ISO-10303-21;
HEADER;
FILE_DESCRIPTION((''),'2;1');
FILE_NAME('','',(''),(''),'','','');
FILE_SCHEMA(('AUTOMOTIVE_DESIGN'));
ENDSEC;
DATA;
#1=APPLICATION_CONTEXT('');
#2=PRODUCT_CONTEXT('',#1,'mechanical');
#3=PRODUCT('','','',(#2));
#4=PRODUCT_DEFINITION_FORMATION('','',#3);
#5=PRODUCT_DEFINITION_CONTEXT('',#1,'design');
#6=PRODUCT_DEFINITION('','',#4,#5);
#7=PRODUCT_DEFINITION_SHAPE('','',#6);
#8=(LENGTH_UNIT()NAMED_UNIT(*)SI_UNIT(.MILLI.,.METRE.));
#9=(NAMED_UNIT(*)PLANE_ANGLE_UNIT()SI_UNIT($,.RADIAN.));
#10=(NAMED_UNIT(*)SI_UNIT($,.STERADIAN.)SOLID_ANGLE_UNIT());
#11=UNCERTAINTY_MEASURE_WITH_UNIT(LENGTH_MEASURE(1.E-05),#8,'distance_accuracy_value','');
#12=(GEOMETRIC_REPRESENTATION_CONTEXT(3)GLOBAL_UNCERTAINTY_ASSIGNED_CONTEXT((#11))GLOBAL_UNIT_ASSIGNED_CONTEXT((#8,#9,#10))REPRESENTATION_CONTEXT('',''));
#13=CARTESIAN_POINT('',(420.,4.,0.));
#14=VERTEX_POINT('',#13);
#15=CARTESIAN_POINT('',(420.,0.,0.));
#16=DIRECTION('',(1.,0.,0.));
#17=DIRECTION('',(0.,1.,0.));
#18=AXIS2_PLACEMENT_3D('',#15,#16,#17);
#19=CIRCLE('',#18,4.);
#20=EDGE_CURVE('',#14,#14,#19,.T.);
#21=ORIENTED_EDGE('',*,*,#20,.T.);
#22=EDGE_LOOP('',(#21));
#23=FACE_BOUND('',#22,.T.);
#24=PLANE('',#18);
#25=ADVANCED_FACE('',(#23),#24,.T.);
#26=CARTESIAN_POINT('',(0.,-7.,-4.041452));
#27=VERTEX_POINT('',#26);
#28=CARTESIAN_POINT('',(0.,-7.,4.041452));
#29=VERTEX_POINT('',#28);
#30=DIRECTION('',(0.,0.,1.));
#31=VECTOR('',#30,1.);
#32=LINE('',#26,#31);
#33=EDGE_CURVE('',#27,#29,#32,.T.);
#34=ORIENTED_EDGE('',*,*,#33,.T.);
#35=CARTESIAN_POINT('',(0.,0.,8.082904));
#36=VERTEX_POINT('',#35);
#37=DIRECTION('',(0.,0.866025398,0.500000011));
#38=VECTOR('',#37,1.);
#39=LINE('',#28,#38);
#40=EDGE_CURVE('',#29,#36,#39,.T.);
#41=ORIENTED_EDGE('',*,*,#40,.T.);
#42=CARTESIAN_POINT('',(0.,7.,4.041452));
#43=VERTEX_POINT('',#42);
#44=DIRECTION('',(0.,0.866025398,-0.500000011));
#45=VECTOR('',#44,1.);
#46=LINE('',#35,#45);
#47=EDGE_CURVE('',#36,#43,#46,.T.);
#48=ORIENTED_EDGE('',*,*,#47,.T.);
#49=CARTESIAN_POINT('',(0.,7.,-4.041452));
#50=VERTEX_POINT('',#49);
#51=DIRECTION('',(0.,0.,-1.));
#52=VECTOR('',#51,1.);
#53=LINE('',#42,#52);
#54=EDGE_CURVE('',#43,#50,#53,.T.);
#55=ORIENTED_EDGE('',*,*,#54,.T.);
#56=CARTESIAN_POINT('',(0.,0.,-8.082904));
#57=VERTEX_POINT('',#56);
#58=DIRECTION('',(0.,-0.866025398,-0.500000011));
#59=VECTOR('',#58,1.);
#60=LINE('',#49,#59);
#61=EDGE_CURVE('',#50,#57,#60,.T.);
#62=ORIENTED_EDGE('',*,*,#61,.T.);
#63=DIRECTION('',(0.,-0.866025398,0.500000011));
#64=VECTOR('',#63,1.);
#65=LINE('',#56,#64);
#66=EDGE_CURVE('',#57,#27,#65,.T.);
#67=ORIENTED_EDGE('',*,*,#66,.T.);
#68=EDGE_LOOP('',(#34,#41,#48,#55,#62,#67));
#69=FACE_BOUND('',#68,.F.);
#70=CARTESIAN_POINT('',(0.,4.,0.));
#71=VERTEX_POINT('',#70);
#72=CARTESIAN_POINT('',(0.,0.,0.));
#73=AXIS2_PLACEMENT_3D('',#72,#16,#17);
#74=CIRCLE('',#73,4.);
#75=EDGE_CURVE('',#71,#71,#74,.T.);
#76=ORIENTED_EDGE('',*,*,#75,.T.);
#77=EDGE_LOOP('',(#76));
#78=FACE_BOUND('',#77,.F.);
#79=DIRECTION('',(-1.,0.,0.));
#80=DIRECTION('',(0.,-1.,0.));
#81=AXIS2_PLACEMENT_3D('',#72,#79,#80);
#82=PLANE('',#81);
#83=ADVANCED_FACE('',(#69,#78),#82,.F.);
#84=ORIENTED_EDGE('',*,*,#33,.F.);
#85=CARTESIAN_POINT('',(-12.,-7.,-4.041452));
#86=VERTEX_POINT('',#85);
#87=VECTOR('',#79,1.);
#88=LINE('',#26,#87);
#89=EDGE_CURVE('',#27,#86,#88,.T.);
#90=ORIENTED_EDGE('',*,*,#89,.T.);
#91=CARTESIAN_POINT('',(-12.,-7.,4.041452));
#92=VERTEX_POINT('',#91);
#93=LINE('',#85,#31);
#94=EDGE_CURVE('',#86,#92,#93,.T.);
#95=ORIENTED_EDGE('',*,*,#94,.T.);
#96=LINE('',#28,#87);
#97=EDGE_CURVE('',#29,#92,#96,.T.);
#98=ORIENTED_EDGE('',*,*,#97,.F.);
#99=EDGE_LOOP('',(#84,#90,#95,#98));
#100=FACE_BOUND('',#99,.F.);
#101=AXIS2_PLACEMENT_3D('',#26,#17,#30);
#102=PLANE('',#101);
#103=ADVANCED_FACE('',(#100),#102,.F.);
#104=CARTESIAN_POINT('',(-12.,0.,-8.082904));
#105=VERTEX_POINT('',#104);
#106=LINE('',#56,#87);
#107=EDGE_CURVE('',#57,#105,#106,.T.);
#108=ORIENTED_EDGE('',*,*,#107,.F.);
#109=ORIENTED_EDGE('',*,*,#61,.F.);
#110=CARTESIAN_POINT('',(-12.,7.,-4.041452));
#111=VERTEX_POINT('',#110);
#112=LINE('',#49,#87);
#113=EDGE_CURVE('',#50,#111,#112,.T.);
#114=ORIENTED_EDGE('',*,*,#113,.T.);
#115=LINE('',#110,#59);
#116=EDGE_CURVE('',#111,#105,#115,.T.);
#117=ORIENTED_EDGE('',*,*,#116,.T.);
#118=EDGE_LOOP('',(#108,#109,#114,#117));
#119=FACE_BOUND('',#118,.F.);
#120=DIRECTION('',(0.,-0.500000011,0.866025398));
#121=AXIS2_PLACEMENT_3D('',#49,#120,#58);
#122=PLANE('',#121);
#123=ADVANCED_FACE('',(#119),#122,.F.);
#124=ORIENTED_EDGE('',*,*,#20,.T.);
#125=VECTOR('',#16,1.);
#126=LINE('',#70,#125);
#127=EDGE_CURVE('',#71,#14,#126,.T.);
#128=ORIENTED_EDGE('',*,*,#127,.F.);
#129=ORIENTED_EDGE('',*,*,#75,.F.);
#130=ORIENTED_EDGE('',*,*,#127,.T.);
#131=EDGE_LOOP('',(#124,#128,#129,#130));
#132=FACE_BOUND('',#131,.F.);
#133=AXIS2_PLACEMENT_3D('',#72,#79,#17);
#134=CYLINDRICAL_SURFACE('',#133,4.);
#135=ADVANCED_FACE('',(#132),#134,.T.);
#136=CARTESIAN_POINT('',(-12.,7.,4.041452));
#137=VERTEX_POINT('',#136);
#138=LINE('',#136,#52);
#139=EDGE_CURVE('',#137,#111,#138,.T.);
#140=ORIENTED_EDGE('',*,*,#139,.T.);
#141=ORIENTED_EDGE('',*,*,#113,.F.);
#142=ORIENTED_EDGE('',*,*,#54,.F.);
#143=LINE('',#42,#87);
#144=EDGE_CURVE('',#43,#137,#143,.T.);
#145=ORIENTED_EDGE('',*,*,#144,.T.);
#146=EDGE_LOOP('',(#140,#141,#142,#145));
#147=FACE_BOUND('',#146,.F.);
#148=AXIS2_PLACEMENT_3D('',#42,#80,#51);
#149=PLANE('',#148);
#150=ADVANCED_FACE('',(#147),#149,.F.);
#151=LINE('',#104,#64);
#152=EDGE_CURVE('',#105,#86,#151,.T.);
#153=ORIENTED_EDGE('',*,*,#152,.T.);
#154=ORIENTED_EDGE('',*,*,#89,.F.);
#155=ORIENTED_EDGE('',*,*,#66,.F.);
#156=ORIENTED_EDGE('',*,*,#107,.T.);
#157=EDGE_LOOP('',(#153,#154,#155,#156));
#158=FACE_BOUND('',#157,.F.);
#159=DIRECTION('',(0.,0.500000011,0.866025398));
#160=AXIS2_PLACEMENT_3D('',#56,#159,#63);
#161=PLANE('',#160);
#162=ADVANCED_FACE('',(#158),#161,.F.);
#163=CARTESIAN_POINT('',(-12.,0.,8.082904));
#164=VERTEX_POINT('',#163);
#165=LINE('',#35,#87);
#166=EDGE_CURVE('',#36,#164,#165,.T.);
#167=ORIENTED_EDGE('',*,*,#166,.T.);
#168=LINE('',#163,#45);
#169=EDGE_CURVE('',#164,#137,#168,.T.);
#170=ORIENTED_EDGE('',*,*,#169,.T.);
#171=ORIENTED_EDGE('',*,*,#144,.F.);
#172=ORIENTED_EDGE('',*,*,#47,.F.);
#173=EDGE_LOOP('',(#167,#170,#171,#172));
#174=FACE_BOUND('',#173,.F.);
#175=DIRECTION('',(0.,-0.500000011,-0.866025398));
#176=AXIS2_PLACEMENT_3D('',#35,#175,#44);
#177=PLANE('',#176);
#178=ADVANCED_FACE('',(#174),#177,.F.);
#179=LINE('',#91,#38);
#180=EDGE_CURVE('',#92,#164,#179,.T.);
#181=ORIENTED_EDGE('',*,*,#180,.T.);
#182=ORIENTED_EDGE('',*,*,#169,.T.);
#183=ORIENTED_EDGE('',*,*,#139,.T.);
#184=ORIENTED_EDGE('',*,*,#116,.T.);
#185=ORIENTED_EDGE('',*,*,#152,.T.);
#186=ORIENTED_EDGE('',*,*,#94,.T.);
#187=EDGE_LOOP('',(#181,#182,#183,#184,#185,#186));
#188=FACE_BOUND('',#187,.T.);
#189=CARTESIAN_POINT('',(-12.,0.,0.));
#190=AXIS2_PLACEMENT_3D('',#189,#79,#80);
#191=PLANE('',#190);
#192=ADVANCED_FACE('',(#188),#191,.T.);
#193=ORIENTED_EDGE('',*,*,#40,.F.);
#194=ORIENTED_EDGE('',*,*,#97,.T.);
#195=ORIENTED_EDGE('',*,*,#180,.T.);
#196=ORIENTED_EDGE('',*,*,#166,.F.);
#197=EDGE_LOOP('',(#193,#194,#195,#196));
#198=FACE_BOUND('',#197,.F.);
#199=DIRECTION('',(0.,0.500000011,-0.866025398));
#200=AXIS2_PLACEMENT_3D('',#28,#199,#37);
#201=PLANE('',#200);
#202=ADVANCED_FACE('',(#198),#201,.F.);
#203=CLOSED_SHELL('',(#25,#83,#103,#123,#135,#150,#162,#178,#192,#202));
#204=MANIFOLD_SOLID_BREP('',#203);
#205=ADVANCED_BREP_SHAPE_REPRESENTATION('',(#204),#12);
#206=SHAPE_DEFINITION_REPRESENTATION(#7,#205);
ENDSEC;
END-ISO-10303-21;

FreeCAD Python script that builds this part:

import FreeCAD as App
import Part
import Sketcher
from FreeCAD import Vector
Q = App.Units.Quantity

doc = App.newDocument("Part")
params = doc.addObject("Spreadsheet::Sheet", "Params")
for row, (alias, value) in enumerate([
    ("sketch1_diameter", "8 mm"),
    ("pad1_length", "420 mm"),
    ("pad2_length", "12 mm"),
], start=1):
    params.set(f"A{row}", alias)
    params.set(f"B{row}", "=" + value)
    params.setAlias(f"B{row}", alias)

body = doc.addObject("PartDesign::Body", "Body")

# Sketch on YZ plane
sketch1 = body.newObject("Sketcher::SketchObject", "Sketch")
sketch1.AttachmentSupport = (doc.getObject("YZ_Plane"), [""])
sketch1.MapMode = "FlatFace"
sketch1.addGeometry(Part.Circle(Vector(0, 0, 0), Vector(0, 0, 1), 4), False)
sketch1.addConstraint(Sketcher.Constraint("Coincident", 0, 3, -1, 1))
sketch1.addConstraint(Sketcher.Constraint("Diameter", 0, 8.0))
sketch1.setExpression("Constraints[1]", "Params.sketch1_diameter")
pad1 = body.newObject("PartDesign::Pad", "Pad")
pad1.Profile = sketch1
pad1.setExpression("Length", "Params.pad1_length")

# Sketch on YZ plane
sketch2 = body.newObject("Sketcher::SketchObject", "Sketch001")
sketch2.AttachmentSupport = (doc.getObject("YZ_Plane"), [""])
sketch2.MapMode = "FlatFace"
sketch2.addGeometry(Part.LineSegment(Vector(-7, 4, 0), Vector(0, 8, 0)), False)
sketch2.addGeometry(Part.LineSegment(Vector(0, 8, 0), Vector(7, 4, 0)), False)
sketch2.addGeometry(Part.LineSegment(Vector(7, 4, 0), Vector(7, -4, 0)), False)
sketch2.addGeometry(Part.LineSegment(Vector(7, -4, 0), Vector(0, -8, 0)), False)
sketch2.addGeometry(Part.LineSegment(Vector(0, -8, 0), Vector(-7, -4, 0)), False)
sketch2.addGeometry(Part.LineSegment(Vector(-7, -4, 0), Vector(-7, 4, 0)), False)
sketch2.addConstraint(Sketcher.Constraint("Coincident", 0, 2, 1, 1))
sketch2.addConstraint(Sketcher.Constraint("Coincident", 1, 2, 2, 1))
sketch2.addConstraint(Sketcher.Constraint("Coincident", 2, 2, 3, 1))
sketch2.addConstraint(Sketcher.Constraint("Coincident", 3, 2, 4, 1))
sketch2.addConstraint(Sketcher.Constraint("Coincident", 4, 2, 5, 1))
sketch2.addConstraint(Sketcher.Constraint("Coincident", 5, 2, 0, 1))
sketch2.addConstraint(Sketcher.Constraint("Vertical", 2))
sketch2.addConstraint(Sketcher.Constraint("Vertical", 5))
sketch2.addConstraint(Sketcher.Constraint("Symmetric", 0, 2, 3, 2, -1, 1))
sketch2.addConstraint(Sketcher.Constraint("Symmetric", 1, 2, 4, 2, -1, 1))
sketch2.addConstraint(Sketcher.Constraint("PointOnObject", 0, 2, -2))
sketch2.addConstraint(Sketcher.Constraint("Parallel", 0, 3))
sketch2.addConstraint(Sketcher.Constraint("Horizontal", 2, 2, 4, 2))
sketch2.addConstraint(Sketcher.Constraint("Angle", 0, Q("30.000001 deg")))
sketch2.addConstraint(Sketcher.Constraint("DistanceX", -1, 1, 1, 2, 7.0))
sketch2.addConstraint(Sketcher.Constraint("DistanceY", 2, 2, 2, 1, 8.082904))
pad2 = body.newObject("PartDesign::Pad", "Pad001")
pad2.Profile = sketch2
pad2.setExpression("Length", "Params.pad2_length")
pad2.Reversed = True

doc.recompute()
